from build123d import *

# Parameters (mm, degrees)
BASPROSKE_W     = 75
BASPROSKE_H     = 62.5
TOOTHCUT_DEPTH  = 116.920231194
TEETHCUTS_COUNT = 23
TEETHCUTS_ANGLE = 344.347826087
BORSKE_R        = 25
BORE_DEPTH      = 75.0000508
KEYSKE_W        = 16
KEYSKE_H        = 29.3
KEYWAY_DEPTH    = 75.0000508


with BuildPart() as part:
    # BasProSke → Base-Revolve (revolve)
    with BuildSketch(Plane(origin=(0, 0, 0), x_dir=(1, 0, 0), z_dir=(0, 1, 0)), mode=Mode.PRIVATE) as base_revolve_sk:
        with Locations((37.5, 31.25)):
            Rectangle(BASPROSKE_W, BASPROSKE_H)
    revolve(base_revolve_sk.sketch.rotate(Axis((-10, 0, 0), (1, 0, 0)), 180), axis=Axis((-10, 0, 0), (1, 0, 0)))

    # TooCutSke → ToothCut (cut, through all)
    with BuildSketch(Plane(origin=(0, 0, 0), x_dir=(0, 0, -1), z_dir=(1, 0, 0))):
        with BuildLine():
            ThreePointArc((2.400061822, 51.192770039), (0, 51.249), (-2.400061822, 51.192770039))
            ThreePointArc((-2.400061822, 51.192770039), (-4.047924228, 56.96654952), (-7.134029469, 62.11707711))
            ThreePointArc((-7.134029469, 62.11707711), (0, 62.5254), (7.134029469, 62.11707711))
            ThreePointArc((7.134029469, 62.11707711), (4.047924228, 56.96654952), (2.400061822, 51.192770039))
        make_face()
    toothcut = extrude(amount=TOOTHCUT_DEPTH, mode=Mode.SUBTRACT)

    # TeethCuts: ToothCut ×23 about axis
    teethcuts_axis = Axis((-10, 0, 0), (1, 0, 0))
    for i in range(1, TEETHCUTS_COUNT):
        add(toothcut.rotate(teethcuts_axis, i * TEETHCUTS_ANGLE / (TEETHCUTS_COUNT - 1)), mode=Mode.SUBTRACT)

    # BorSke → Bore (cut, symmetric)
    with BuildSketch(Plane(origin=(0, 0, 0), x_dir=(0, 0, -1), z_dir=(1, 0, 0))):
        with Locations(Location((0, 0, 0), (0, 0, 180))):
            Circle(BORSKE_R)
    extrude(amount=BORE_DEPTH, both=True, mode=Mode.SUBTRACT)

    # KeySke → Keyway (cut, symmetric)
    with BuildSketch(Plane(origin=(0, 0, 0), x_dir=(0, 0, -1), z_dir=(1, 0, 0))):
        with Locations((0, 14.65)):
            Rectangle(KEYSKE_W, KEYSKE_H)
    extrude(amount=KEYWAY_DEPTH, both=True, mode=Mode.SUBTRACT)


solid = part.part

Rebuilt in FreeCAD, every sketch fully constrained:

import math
import FreeCAD as App
import Part
import Sketcher
from FreeCAD import Vector

doc = App.newDocument("Part")
body = doc.addObject("PartDesign::Body", "Body")

sketch1 = body.newObject("Sketcher::SketchObject", "Sketch")
sketch1.AttachmentSupport = (doc.getObject("XZ_Plane"), [""])
sketch1.MapMode = "FlatFace"
sketch1.addGeometry(Part.LineSegment(Vector(0, -62, 0), Vector(0, 0, 0)), False)
sketch1.addGeometry(Part.LineSegment(Vector(0, 0, 0), Vector(75, 0, 0)), False)
sketch1.addGeometry(Part.LineSegment(Vector(75, 0, 0), Vector(75, -62, 0)), False)
sketch1.addGeometry(Part.LineSegment(Vector(75, -62, 0), Vector(0, -62, 0)), False)
sketch1.addConstraint(Sketcher.Constraint("Coincident", 0, 2, 1, 1))
sketch1.addConstraint(Sketcher.Constraint("Coincident", 1, 2, 2, 1))
sketch1.addConstraint(Sketcher.Constraint("Coincident", 2, 2, 3, 1))
sketch1.addConstraint(Sketcher.Constraint("Coincident", 3, 2, 0, 1))
sketch1.addConstraint(Sketcher.Constraint("Vertical", 0))
sketch1.addConstraint(Sketcher.Constraint("Horizontal", 1))
sketch1.addConstraint(Sketcher.Constraint("Vertical", 2))
sketch1.addConstraint(Sketcher.Constraint("Horizontal", 3))
sketch1.addConstraint(Sketcher.Constraint("Coincident", 0, 2, -1, 1))
sketch1.addConstraint(Sketcher.Constraint("DistanceX", 1, 1, 1, 2, 75.0))
sketch1.addConstraint(Sketcher.Constraint("DistanceY", 0, 1, 0, 2, 62.5))
revolution = body.newObject("PartDesign::Revolution", "Revolution")
revolution.Profile = sketch1
revolution.ReferenceAxis = (sketch1, ["H_Axis"])
revolution.Angle = 360

sketch2 = body.newObject("Sketcher::SketchObject", "Sketch001")
sketch2.AttachmentSupport = (doc.getObject("YZ_Plane"), [""])
sketch2.MapMode = "FlatFace"
sketch2.addGeometry(Part.ArcOfCircle(Part.Circle(Vector(0, 0, 0), Vector(0, 0, 1), 51.2), math.radians(-2.68), math.radians(2.68)), False)
sketch2.addGeometry(Part.ArcOfCircle(Part.Circle(Vector(47.8, -25.2, 0), Vector(0, 0, 1), 23), math.radians(52), math.radians(82)), False)
sketch2.addGeometry(Part.ArcOfCircle(Part.Circle(Vector(0, 0, 0), Vector(0, 0, 1), 62.5), math.radians(-6.55), math.radians(6.55)), False)
sketch2.addGeometry(Part.ArcOfCircle(Part.Circle(Vector(47.8, 25.2, 0), Vector(0, 0, 1), 23), math.radians(-82), math.radians(-52)), False)
sketch2.addConstraint(Sketcher.Constraint("Coincident", 0, 1, 1, 2))
sketch2.addConstraint(Sketcher.Constraint("Coincident", 1, 1, 2, 1))
sketch2.addConstraint(Sketcher.Constraint("Coincident", 2, 2, 3, 2))
sketch2.addConstraint(Sketcher.Constraint("Coincident", 3, 1, 0, 2))
sketch2.addConstraint(Sketcher.Constraint("Coincident", 0, 3, -1, 1))
sketch2.addConstraint(Sketcher.Constraint("Coincident", 2, 3, -1, 1))
sketch2.addConstraint(Sketcher.Constraint("Equal", 1, 3))
sketch2.addConstraint(Sketcher.Constraint("Symmetric", 1, 3, 3, 3, -1))
sketch2.addConstraint(Sketcher.Constraint("Radius", 1, 23.0))
sketch2.addConstraint(Sketcher.Constraint("Radius", 0, 51.249))
sketch2.addConstraint(Sketcher.Constraint("Radius", 2, 62.5254))
sketch2.addConstraint(Sketcher.Constraint("DistanceX", -1, 1, 0, 1, 51.19277))
sketch2.addConstraint(Sketcher.Constraint("DistanceY", 1, 1, -1, 1, 7.134029))
pocket1 = body.newObject("PartDesign::Pocket", "Pocket")
pocket1.Profile = sketch2
pocket1.Type = "ThroughAll"
pocket1.Reversed = True
doc.recompute()

polarpattern = body.newObject("PartDesign::PolarPattern", "PolarPattern")
polarpattern.Originals = [pocket1]
polarpattern.Axis = (doc.getObject("X_Axis"), [""])
polarpattern.Angle = 360
polarpattern.Occurrences = 23
body.Tip = polarpattern

sketch3 = body.newObject("Sketcher::SketchObject", "Sketch002")
sketch3.AttachmentSupport = (doc.getObject("YZ_Plane"), [""])
sketch3.MapMode = "FlatFace"
sketch3.addGeometry(Part.Circle(Vector(0, 0, 0), Vector(0, 0, 1), 25), False)
sketch3.addConstraint(Sketcher.Constraint("Coincident", 0, 3, -1, 1))
sketch3.addConstraint(Sketcher.Constraint("Diameter", 0, 50.0))
pocket2 = body.newObject("PartDesign::Pocket", "Pocket001")
pocket2.Profile = sketch3
pocket2.Length = 150.000102
pocket2.Midplane = True

sketch4 = body.newObject("Sketcher::SketchObject", "Sketch003")
sketch4.AttachmentSupport = (doc.getObject("YZ_Plane"), [""])
sketch4.MapMode = "FlatFace"
sketch4.addGeometry(Part.LineSegment(Vector(29, 8, 0), Vector(0, 8, 0)), False)
sketch4.addGeometry(Part.LineSegment(Vector(0, 8, 0), Vector(0, -8, 0)), False)
sketch4.addGeometry(Part.LineSegment(Vector(0, -8, 0), Vector(29, -8, 0)), False)
sketch4.addGeometry(Part.LineSegment(Vector(29, -8, 0), Vector(29, 8, 0)), False)
sketch4.addConstraint(Sketcher.Constraint("Coincident", 0, 2, 1, 1))
sketch4.addConstraint(Sketcher.Constraint("Coincident", 1, 2, 2, 1))
sketch4.addConstraint(Sketcher.Constraint("Coincident", 2, 2, 3, 1))
sketch4.addConstraint(Sketcher.Constraint("Coincident", 3, 2, 0, 1))
sketch4.addConstraint(Sketcher.Constraint("Horizontal", 0))
sketch4.addConstraint(Sketcher.Constraint("Vertical", 1))
sketch4.addConstraint(Sketcher.Constraint("Horizontal", 2))
sketch4.addConstraint(Sketcher.Constraint("Vertical", 3))
sketch4.addConstraint(Sketcher.Constraint("Symmetric", 0, 2, 1, 2, -1, 1))
sketch4.addConstraint(Sketcher.Constraint("DistanceY", 1, 2, 1, 1, 16.0))
sketch4.addConstraint(Sketcher.Constraint("DistanceX", 0, 2, 0, 1, 29.3))
pocket3 = body.newObject("PartDesign::Pocket", "Pocket002")
pocket3.Profile = sketch4
pocket3.Length = 150.000102
pocket3.Midplane = True

doc.recompute()
